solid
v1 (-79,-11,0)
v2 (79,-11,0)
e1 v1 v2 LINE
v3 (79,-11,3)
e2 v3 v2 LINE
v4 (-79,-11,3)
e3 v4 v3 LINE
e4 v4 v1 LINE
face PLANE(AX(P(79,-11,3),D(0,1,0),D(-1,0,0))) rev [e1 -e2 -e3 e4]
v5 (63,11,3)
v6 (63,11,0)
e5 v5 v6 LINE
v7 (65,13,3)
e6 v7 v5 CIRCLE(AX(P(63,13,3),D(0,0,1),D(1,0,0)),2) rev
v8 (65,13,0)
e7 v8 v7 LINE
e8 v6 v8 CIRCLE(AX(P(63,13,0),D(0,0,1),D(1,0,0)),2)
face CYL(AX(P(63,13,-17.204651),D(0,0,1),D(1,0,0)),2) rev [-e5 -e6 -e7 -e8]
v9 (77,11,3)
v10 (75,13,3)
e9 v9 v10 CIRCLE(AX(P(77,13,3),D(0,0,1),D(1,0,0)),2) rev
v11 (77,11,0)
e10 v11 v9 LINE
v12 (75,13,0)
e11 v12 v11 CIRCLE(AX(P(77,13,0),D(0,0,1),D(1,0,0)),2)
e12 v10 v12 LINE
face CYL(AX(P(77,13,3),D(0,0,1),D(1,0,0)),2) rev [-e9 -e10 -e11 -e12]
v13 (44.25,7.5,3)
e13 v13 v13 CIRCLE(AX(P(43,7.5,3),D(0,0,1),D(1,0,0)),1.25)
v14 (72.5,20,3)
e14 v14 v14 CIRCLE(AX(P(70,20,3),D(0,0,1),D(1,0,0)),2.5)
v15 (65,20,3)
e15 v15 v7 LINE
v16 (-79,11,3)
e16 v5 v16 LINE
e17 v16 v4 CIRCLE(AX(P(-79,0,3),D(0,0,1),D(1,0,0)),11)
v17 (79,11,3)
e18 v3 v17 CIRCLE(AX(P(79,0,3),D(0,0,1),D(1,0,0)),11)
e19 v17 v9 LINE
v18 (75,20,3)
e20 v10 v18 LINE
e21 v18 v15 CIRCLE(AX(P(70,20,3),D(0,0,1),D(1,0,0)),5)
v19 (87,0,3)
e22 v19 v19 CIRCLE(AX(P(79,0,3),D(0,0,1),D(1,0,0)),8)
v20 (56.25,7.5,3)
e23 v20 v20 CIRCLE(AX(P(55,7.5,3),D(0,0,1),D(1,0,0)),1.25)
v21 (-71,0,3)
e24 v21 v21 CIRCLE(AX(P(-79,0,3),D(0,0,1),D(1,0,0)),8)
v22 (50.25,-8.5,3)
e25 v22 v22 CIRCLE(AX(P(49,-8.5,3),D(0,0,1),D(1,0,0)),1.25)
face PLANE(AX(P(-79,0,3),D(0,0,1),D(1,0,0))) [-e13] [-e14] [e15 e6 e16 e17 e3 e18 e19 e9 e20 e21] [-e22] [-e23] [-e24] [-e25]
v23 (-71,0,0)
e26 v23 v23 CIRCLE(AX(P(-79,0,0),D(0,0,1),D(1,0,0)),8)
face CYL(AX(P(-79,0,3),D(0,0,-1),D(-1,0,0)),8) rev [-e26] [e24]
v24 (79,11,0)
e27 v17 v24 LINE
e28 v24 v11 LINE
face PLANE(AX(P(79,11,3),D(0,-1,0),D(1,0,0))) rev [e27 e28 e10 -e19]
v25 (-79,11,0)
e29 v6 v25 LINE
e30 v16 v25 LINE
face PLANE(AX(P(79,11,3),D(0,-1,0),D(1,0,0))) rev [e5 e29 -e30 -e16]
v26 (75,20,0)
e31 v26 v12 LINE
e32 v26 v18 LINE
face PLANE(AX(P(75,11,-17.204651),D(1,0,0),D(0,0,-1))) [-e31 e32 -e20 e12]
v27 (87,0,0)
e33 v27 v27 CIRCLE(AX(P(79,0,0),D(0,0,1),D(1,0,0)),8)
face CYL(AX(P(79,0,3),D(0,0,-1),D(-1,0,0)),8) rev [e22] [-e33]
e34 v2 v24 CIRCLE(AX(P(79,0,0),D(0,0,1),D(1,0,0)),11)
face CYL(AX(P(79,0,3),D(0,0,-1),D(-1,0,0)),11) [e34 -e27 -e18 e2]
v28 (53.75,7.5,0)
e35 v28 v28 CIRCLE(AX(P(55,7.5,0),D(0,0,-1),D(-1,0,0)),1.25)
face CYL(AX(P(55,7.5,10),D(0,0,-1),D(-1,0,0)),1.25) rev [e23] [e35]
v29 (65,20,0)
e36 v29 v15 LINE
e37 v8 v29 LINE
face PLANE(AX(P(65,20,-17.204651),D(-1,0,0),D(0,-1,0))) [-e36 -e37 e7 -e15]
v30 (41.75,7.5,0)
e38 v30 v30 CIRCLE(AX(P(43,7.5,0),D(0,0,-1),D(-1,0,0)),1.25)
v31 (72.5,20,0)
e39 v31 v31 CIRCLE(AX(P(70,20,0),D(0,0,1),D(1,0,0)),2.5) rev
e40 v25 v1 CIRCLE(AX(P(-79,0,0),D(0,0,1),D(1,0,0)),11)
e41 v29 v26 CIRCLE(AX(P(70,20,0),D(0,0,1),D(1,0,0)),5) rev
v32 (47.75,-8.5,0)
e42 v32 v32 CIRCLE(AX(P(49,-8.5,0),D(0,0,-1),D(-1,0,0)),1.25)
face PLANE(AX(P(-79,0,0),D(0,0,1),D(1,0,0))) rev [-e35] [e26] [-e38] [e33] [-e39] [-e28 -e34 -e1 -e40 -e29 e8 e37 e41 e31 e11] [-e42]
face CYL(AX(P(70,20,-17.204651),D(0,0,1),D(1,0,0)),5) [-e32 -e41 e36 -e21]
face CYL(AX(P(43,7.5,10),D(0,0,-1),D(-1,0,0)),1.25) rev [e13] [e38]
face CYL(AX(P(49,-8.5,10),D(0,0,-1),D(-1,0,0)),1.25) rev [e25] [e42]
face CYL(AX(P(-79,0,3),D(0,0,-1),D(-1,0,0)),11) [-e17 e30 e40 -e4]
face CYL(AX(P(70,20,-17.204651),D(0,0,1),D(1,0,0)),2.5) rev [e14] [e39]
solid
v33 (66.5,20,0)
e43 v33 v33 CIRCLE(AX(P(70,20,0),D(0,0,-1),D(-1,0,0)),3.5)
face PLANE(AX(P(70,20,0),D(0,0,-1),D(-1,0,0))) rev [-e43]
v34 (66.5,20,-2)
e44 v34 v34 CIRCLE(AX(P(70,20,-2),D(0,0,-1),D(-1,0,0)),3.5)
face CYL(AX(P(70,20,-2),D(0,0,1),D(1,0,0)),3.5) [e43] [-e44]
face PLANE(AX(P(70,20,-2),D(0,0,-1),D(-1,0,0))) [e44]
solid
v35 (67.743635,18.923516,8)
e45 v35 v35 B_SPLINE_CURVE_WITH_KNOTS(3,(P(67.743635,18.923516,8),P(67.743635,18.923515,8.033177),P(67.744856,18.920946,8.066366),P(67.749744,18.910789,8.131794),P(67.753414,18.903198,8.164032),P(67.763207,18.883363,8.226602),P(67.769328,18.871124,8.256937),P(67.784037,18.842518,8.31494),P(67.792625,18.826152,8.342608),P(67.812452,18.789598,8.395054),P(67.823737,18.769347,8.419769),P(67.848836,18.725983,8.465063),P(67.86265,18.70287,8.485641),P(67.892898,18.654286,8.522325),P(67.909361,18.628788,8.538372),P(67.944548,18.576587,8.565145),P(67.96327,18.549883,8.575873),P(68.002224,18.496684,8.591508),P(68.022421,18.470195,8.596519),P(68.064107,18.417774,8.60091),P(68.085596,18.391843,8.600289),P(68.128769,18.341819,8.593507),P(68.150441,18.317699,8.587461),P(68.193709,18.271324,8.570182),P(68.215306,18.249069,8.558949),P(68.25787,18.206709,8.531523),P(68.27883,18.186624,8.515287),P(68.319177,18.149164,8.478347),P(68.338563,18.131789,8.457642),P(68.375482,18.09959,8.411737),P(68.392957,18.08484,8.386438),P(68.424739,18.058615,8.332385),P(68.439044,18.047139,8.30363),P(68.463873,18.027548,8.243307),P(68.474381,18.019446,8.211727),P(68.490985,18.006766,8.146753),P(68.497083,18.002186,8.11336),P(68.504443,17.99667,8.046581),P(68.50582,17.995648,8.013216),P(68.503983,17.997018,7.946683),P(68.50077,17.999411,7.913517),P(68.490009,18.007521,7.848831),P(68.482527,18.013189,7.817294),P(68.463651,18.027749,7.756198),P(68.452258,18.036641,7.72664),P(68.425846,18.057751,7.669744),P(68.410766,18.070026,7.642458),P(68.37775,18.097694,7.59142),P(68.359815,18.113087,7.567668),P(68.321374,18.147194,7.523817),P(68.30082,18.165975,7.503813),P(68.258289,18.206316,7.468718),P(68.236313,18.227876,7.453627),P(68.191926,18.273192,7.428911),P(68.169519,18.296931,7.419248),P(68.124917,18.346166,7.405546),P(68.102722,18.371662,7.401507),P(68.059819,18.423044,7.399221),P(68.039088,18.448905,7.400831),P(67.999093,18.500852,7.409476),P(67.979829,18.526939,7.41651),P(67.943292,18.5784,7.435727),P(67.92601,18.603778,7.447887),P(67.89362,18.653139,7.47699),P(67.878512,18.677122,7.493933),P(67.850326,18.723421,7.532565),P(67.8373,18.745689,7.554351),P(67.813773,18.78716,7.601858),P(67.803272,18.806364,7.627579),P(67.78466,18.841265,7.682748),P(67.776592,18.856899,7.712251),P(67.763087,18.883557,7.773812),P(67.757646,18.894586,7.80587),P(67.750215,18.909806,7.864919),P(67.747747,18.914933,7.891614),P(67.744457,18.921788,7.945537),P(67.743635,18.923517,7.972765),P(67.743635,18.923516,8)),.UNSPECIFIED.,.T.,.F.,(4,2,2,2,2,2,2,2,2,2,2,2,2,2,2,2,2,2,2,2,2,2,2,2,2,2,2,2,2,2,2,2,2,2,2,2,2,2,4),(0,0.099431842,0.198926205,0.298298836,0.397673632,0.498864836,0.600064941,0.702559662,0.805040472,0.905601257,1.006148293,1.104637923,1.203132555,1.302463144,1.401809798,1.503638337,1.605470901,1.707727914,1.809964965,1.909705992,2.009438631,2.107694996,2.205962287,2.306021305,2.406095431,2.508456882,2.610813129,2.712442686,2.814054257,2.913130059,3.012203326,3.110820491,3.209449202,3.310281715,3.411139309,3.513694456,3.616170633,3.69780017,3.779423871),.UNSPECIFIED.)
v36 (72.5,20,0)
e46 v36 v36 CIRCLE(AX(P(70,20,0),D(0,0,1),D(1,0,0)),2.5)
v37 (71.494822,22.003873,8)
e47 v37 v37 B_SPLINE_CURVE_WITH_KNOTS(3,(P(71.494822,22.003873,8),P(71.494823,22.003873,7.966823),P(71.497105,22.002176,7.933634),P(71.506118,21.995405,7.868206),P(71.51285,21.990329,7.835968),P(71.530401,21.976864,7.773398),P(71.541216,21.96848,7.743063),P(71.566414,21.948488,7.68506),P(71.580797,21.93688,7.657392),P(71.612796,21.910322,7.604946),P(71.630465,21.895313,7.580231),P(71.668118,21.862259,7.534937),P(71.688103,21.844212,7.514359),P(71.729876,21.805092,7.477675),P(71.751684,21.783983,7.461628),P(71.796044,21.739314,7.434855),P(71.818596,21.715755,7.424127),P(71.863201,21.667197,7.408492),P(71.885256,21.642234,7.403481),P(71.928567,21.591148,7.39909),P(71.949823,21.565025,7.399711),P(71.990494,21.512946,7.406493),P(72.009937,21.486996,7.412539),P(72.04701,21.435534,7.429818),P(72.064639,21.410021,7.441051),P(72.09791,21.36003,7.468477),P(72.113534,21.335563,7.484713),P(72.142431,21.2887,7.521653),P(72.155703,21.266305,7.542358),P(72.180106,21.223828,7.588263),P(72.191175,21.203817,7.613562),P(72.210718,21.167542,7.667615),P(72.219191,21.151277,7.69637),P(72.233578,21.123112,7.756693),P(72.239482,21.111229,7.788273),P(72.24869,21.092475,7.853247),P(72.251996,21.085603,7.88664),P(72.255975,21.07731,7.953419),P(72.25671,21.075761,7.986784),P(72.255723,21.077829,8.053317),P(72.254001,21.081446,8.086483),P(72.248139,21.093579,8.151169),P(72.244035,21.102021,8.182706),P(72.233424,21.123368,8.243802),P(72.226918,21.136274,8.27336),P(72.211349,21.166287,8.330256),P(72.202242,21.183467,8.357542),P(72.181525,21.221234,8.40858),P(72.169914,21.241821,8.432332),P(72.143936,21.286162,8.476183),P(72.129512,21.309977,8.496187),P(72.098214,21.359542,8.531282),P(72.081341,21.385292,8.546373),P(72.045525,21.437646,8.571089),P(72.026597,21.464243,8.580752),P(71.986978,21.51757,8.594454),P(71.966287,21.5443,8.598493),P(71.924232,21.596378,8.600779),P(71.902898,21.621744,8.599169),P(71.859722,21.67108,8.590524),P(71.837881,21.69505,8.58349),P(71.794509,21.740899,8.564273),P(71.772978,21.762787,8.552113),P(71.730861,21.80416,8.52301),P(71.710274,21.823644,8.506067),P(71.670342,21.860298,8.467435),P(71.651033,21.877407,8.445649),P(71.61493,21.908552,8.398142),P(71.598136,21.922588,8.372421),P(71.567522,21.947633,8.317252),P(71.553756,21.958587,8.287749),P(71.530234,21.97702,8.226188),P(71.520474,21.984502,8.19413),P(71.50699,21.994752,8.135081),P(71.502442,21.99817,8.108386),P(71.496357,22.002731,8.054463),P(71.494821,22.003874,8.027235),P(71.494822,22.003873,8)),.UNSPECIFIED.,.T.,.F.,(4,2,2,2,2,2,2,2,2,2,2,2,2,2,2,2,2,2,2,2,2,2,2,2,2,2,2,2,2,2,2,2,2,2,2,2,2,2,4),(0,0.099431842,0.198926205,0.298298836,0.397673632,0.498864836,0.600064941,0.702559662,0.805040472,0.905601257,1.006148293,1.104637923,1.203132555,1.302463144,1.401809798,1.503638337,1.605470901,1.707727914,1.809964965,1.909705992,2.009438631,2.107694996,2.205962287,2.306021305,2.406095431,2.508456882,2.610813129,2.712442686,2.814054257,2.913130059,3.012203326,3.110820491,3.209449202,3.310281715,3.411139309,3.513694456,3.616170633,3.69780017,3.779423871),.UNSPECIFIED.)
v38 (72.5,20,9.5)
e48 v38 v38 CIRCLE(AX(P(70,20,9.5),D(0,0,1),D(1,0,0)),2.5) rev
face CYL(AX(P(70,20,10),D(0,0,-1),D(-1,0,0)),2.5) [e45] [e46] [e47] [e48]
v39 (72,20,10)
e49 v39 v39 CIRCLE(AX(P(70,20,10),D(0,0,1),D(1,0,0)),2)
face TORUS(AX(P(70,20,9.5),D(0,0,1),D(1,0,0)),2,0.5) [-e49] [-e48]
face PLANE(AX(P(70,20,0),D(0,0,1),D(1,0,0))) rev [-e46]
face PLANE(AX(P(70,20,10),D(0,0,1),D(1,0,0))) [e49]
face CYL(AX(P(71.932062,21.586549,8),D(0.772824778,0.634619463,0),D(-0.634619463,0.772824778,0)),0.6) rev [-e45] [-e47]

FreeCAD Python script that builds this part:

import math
import FreeCAD as App
import Part
import Sketcher
from FreeCAD import Vector


def edges_at(feature, points):
    """Names of the edges that pass closest to the given points."""
    edges = feature.Shape.Edges
    near = lambda p: min(range(len(edges)), key=lambda i: edges[i].distToShape(Part.Vertex(*p))[0])
    return sorted({f"Edge{near(p) + 1}" for p in points})


def add_polygon(sketch, points):
    """Adds a closed chain of lines whose ends are joined by coincident constraints."""
    first, n = sketch.GeometryCount, len(points)
    for a, b in zip(points, points[1:] + points[:1]):
        sketch.addGeometry(Part.LineSegment(App.Vector(*a, 0), App.Vector(*b, 0)), False)
    for i in range(n):
        sketch.addConstraint(Sketcher.Constraint("Coincident", first + i, 2, first + (i + 1) % n, 1))

doc = App.newDocument("Part")
body = doc.addObject("PartDesign::Body", "Body")

# Sketch on XY plane
sketch1 = body.newObject("Sketcher::SketchObject", "Sketch")
sketch1.AttachmentSupport = (doc.getObject("XY_Plane"), [""])
sketch1.MapMode = "FlatFace"
sketch1.addGeometry([
    Part.LineSegment(Vector(79, 11, 0), Vector(-79, 11, 0)),  # 0
    Part.ArcOfCircle(Part.Circle(Vector(-79, 0, 0), Vector(0, 0, 1), 11), math.radians(90), math.radians(270)),  # 1
    Part.LineSegment(Vector(-79, -11, 0), Vector(79, -11, 0)),  # 2
    Part.ArcOfCircle(Part.Circle(Vector(79, 0, 0), Vector(0, 0, 1), 11), math.radians(-90), math.radians(90)),  # 3
    Part.Circle(Vector(-79, 0, 0), Vector(0, 0, 1), 8),  # 4
    Part.Circle(Vector(79, 0, 0), Vector(0, 0, 1), 8),  # 5
], False)
sketch1.addConstraint([
    Sketcher.Constraint("Tangent", 0, 2, 1, 1),
    Sketcher.Constraint("Tangent", 1, 2, 2, 1),
    Sketcher.Constraint("Tangent", 2, 2, 3, 1),
    Sketcher.Constraint("Tangent", 3, 2, 0, 1),
    Sketcher.Constraint("Horizontal", 0),
    Sketcher.Constraint("Horizontal", 2),
    Sketcher.Constraint("Coincident", 4, 3, 1, 3),
    Sketcher.Constraint("Coincident", 5, 3, 3, 3),
    Sketcher.Constraint("Equal", 4, 5),
    Sketcher.Constraint("Symmetric", 1, 3, 3, 3, -1, 1),
    Sketcher.Constraint("Diameter", 4, 16.0),
    Sketcher.Constraint("Radius", 1, 11.0),
    Sketcher.Constraint("DistanceX", 0, 2, 0, 1, 158.0),
])
pad1 = body.newObject("PartDesign::Pad", "Pad")
pad1.Profile = sketch1
pad1.Length = 3

# Sketch on XY plane
sketch2 = body.newObject("Sketcher::SketchObject", "Sketch001")
sketch2.AttachmentSupport = (doc.getObject("XY_Plane"), [""])
sketch2.MapMode = "FlatFace"
sketch2.AttachmentOffset = App.Placement(Vector(0, 0, 3), App.Rotation())
sketch2.addGeometry([
    Part.LineSegment(Vector(75, 11, 0), Vector(75, 20, 0)),  # 0
    Part.ArcOfCircle(Part.Circle(Vector(70, 20, 0), Vector(0, 0, 1), 5), math.radians(0), math.radians(180)),  # 1
    Part.LineSegment(Vector(65, 20, 0), Vector(65, 11, 0)),  # 2
    Part.LineSegment(Vector(65, 11, 0), Vector(75, 11, 0)),  # 3
    Part.Circle(Vector(70, 20, 0), Vector(0, 0, 1), 2.5),  # 4
], False)
sketch2.addConstraint([
    Sketcher.Constraint("Tangent", 0, 2, 1, 1),
    Sketcher.Constraint("Tangent", 1, 2, 2, 1),
    Sketcher.Constraint("Coincident", 2, 2, 3, 1),
    Sketcher.Constraint("Coincident", 3, 2, 0, 1),
    Sketcher.Constraint("Vertical", 0),
    Sketcher.Constraint("Vertical", 2),
    Sketcher.Constraint("Horizontal", 3),
    Sketcher.Constraint("Coincident", 4, 3, 1, 3),
    Sketcher.Constraint("Diameter", 4, 5.0),
    Sketcher.Constraint("Radius", 1, 5.0),
    Sketcher.Constraint("DistanceY", 0, 1, 0, 2, 9.0),
    Sketcher.Constraint("DistanceX", -1, 1, 1, 3, 70.0),
    Sketcher.Constraint("DistanceY", -1, 1, 1, 3, 20.0),
])
pad2 = body.newObject("PartDesign::Pad", "Pad001")
pad2.Profile = sketch2
pad2.Length = 3
pad2.Reversed = True
doc.recompute()

fillet = body.newObject("PartDesign::Fillet", "Fillet")
fillet.Base = (pad2, edges_at(pad2, [(65, 11, 1.5), (75, 11, 1.5)]))
fillet.Radius = 2

# Sketch on XY plane
sketch3 = body.newObject("Sketcher::SketchObject", "Sketch002")
sketch3.AttachmentSupport = (doc.getObject("XY_Plane"), [""])
sketch3.MapMode = "FlatFace"
sketch3.addGeometry([
    Part.Circle(Vector(55, 7.5, 0), Vector(0, 0, 1), 1.2),
    Part.Circle(Vector(43, 7.5, 0), Vector(0, 0, 1), 1.2),
    Part.Circle(Vector(49, -8.5, 0), Vector(0, 0, 1), 1.2),
], False)
sketch3.addConstraint([
    Sketcher.Constraint("Equal", 0, 1),
    Sketcher.Constraint("Equal", 1, 2),
    Sketcher.Constraint("Horizontal", 0, 3, 1, 3),
    Sketcher.Constraint("Diameter", 0, 2.5),
    Sketcher.Constraint("DistanceX", -1, 1, 0, 3, 55.0),
    Sketcher.Constraint("DistanceX", -1, 1, 1, 3, 43.0),
    Sketcher.Constraint("DistanceX", -1, 1, 2, 3, 49.0),
    Sketcher.Constraint("DistanceY", 2, 3, 0, 3, 16.0),
    Sketcher.Constraint("DistanceY", -1, 1, 0, 3, 7.5),
])
pocket1 = body.newObject("PartDesign::Pocket", "Pocket")
pocket1.Profile = sketch3
pocket1.Type = "ThroughAll"
pocket1.Reversed = True
body2 = doc.addObject("PartDesign::Body", "Body001")

# Sketch on XY plane
sketch4 = body2.newObject("Sketcher::SketchObject", "Sketch003")
sketch4.AttachmentSupport = (doc.getObject("XY_Plane001"), [""])
sketch4.MapMode = "FlatFace"
sketch4.addGeometry(Part.Circle(Vector(70, 20, 0), Vector(0, 0, 1), 3.5), False)
sketch4.addConstraint([
    Sketcher.Constraint("Diameter", 0, 7.0),
    Sketcher.Constraint("DistanceX", -1, 1, 0, 3, 70.0),
    Sketcher.Constraint("DistanceY", -1, 1, 0, 3, 20.0),
])
pad3 = body2.newObject("PartDesign::Pad", "Pad002")
pad3.Profile = sketch4
pad3.Length = 2
pad3.Reversed = True
body3 = doc.addObject("PartDesign::Body", "Body002")

# Sketch on XY plane
sketch5 = body3.newObject("Sketcher::SketchObject", "Sketch004")
sketch5.AttachmentSupport = (doc.getObject("XY_Plane002"), [""])
sketch5.MapMode = "FlatFace"
sketch5.addGeometry(Part.Circle(Vector(70, 20, 0), Vector(0, 0, 1), 2.5), False)
sketch5.addConstraint([
    Sketcher.Constraint("Diameter", 0, 5.0),
    Sketcher.Constraint("DistanceX", -1, 1, 0, 3, 70.0),
    Sketcher.Constraint("DistanceY", -1, 1, 0, 3, 20.0),
])
pad4 = body3.newObject("PartDesign::Pad", "Pad003")
pad4.Profile = sketch5
pad4.Length = 10
doc.recompute()

fillet2 = body3.newObject("PartDesign::Fillet", "Fillet001")
fillet2.Base = (pad4, edges_at(pad4, [(67.5, 20, 10)]))
fillet2.Radius = 0.5

# Sketch on XY plane
sketch6 = body3.newObject("Sketcher::SketchObject", "Sketch005")
sketch6.AttachmentSupport = (doc.getObject("XY_Plane002"), [""])
sketch6.MapMode = "FlatFace"
sketch6.AttachmentOffset = App.Placement(Vector(0, 0, 8), App.Rotation())
add_polygon(sketch6, [(-40.8, -71), (71.9, 21.6), (71.6, 22.1), (-41.1, -70.5)])  # lines 0-3
sketch6.addGeometry(Part.LineSegment(Vector(71.9, 21.6, 0), Vector(-40.8, -71, 0)), True)  # axis
sketch6.addConstraint([
    Sketcher.Constraint("Coincident", 4, 1, 0, 2),
    Sketcher.Constraint("Coincident", 4, 2, 3, 2),
    Sketcher.Constraint("Perpendicular", 0, 1),
    Sketcher.Constraint("Perpendicular", 1, 2),
    Sketcher.Constraint("Perpendicular", 2, 3),
    Sketcher.Constraint("Distance", 1, 0.6),
    Sketcher.Constraint("DistanceX", -1, 1, 0, 2, 71.932062),
    Sketcher.Constraint("DistanceY", -1, 1, 0, 2, 21.586549),
    Sketcher.Constraint("DistanceX", 3, 2, -1, 1, 40.765241),
    Sketcher.Constraint("DistanceY", 3, 2, -1, 1, 70.956941),
])
groove = body3.newObject("PartDesign::Groove", "Groove")
groove.Profile = sketch6
groove.ReferenceAxis = (sketch6, ["Axis0"])
groove.Angle = 360

doc.recompute()
